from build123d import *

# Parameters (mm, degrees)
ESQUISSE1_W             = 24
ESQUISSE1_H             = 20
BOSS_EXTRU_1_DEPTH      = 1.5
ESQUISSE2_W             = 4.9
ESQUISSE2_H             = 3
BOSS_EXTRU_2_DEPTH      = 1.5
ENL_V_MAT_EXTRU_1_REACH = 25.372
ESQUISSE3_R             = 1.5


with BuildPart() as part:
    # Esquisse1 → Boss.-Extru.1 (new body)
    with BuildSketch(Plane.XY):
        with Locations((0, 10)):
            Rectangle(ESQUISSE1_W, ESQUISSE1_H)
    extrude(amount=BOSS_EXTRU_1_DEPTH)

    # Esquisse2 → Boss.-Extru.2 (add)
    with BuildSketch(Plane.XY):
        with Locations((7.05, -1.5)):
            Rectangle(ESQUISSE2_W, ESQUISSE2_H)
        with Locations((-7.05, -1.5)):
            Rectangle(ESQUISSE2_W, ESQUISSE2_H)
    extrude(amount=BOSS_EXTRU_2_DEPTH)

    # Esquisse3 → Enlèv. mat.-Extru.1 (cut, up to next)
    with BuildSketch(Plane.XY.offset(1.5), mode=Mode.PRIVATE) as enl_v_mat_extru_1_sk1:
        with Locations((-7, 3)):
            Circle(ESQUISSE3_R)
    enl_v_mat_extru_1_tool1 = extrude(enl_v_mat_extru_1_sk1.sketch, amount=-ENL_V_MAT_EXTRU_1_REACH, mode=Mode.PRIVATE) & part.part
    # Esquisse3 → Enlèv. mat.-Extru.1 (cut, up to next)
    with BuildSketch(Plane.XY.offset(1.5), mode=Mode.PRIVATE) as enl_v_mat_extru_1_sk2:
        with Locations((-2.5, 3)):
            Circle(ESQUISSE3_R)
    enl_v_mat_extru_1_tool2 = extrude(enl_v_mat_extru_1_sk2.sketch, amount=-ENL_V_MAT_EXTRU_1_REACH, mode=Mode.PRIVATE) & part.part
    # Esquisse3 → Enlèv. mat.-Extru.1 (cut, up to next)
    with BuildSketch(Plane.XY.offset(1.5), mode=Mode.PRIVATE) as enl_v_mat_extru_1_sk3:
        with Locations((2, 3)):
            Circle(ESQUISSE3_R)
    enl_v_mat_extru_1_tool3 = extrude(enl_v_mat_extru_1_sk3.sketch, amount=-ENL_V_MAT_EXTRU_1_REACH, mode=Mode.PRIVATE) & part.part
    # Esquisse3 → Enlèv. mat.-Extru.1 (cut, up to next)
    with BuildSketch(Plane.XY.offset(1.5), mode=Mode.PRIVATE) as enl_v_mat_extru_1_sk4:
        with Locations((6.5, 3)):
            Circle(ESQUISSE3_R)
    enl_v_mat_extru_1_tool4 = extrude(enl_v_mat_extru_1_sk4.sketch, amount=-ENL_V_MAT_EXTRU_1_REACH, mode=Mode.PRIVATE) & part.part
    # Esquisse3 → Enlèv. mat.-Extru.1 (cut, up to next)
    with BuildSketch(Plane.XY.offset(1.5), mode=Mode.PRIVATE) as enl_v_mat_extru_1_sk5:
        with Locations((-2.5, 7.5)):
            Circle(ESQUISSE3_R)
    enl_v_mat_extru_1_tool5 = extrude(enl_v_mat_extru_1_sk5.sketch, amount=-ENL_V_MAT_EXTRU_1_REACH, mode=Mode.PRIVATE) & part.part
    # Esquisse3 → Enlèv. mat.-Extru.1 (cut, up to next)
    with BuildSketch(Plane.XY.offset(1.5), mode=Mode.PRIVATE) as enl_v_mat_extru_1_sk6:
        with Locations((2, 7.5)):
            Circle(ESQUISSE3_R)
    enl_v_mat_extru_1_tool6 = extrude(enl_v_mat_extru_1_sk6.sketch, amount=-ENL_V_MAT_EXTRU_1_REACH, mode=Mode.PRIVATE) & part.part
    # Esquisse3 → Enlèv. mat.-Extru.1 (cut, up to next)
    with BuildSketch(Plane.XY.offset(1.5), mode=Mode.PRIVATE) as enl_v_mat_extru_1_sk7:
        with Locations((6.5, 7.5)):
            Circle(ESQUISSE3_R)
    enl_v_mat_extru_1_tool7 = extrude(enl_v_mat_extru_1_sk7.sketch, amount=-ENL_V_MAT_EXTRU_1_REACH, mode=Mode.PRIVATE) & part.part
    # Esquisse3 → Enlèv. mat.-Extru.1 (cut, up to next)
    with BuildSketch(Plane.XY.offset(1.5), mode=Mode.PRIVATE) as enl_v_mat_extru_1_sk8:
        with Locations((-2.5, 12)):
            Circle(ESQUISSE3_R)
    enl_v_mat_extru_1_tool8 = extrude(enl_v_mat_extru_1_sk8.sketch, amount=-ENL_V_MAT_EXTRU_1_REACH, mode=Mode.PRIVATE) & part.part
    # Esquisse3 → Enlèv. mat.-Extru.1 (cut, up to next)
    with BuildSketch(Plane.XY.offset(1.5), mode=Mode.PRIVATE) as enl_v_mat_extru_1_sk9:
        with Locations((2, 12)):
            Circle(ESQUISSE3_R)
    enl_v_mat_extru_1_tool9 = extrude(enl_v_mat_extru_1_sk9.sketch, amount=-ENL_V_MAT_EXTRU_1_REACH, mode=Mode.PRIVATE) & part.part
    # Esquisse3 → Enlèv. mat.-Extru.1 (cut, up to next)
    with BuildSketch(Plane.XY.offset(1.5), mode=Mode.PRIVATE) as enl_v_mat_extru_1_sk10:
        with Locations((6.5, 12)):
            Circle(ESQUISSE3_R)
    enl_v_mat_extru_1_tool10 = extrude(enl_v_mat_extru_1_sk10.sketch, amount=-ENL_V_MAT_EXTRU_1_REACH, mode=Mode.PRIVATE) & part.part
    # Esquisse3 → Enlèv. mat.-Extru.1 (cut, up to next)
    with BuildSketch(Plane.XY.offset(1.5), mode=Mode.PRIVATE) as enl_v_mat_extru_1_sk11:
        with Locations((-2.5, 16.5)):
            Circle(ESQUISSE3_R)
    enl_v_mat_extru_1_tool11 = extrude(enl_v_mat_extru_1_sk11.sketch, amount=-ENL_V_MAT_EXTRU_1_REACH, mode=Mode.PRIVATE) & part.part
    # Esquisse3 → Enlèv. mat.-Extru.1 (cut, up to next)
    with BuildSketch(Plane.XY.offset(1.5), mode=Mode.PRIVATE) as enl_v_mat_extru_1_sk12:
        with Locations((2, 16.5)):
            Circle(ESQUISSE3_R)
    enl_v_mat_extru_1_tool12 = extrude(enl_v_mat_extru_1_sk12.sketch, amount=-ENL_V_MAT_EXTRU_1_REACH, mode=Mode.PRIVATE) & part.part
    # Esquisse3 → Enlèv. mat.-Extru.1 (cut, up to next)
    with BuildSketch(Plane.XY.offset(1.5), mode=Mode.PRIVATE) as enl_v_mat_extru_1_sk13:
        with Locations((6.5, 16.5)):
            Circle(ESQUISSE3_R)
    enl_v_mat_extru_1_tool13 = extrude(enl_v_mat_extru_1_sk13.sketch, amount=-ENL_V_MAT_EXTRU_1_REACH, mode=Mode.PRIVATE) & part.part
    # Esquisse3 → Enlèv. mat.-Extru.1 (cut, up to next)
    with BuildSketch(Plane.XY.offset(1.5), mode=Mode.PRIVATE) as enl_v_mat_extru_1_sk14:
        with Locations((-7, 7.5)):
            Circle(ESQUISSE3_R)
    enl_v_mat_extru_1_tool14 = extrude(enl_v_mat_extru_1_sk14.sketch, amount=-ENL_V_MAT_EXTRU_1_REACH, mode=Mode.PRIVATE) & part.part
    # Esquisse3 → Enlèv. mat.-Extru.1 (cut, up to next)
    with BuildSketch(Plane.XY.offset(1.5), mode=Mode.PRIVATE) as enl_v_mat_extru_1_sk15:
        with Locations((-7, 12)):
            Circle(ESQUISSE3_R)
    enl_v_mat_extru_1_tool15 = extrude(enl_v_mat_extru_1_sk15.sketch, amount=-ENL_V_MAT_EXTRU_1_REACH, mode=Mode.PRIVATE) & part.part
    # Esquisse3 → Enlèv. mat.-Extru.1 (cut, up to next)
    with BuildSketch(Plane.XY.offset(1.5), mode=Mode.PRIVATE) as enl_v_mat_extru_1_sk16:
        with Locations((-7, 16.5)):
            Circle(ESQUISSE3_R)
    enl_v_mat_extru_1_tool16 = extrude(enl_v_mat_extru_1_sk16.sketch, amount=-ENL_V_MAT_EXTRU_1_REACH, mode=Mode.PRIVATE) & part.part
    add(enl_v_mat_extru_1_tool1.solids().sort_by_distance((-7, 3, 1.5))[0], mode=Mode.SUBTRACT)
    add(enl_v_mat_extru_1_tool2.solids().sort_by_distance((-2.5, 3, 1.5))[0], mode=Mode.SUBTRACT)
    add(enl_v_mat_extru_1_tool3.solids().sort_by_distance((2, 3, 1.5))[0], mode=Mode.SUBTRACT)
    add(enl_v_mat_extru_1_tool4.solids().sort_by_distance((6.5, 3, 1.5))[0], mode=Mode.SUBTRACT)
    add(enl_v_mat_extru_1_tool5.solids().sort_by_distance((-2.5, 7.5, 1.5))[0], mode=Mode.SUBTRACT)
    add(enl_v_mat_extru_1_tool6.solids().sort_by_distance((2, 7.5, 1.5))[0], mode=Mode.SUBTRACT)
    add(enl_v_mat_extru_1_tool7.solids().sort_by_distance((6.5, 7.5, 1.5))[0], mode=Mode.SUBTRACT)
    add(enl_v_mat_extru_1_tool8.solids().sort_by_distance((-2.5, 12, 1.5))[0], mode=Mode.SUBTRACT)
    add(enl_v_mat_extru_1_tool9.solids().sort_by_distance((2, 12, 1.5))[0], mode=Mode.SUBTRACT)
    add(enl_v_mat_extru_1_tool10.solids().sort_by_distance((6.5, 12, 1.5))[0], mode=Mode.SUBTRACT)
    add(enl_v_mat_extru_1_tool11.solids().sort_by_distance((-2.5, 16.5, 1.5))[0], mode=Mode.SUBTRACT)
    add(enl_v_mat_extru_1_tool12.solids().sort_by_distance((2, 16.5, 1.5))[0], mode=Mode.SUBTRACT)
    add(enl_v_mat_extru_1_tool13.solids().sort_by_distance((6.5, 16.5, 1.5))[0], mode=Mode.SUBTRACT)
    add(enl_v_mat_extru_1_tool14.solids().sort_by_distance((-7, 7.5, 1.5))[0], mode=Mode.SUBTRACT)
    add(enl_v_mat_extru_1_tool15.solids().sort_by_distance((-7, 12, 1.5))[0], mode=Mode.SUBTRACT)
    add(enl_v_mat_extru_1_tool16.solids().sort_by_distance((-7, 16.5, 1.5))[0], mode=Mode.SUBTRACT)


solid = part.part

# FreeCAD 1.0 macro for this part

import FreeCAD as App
import Part
import Sketcher


def add_polygon(sketch, points):
    """Adds a closed chain of lines whose ends are joined by coincident constraints."""
    first, n = sketch.GeometryCount, len(points)
    for a, b in zip(points, points[1:] + points[:1]):
        sketch.addGeometry(Part.LineSegment(App.Vector(*a, 0), App.Vector(*b, 0)), False)
    for i in range(n):
        sketch.addConstraint(Sketcher.Constraint("Coincident", first + i, 2, first + (i + 1) % n, 1))

doc = App.newDocument("Part")
body = doc.addObject("PartDesign::Body", "Body")

# Sketch on XY plane
sketch1 = body.newObject("Sketcher::SketchObject", "Sketch")
sketch1.AttachmentSupport = (doc.getObject("XY_Plane"), [""])
sketch1.MapMode = "FlatFace"
add_polygon(sketch1, [(-12, 20), (-12, 0), (12, 0), (12, 20)])  # lines 0-3
sketch1.addConstraint([
    Sketcher.Constraint("Vertical", 0),
    Sketcher.Constraint("Horizontal", 1),
    Sketcher.Constraint("Vertical", 2),
    Sketcher.Constraint("Horizontal", 3),
    Sketcher.Constraint("Symmetric", 0, 2, 1, 2, -1, 1),
    Sketcher.Constraint("DistanceX", 1, 1, 1, 2, 24.0),
    Sketcher.Constraint("DistanceY", 0, 2, 0, 1, 20.0),
])
pad1 = body.newObject("PartDesign::Pad", "Pad")
pad1.Profile = sketch1
pad1.Length = 1.5

# Sketch on XY plane
sketch2 = body.newObject("Sketcher::SketchObject", "Sketch001")
sketch2.AttachmentSupport = (doc.getObject("XY_Plane"), [""])
sketch2.MapMode = "FlatFace"
add_polygon(sketch2, [(4.6, 0), (4.6, -3), (9.5, -3), (9.5, 0)])  # lines 0-3
add_polygon(sketch2, [(-9.5, 0), (-9.5, -3), (-4.6, -3), (-4.6, 0)])  # lines 4-7
sketch2.addConstraint([
    Sketcher.Constraint("Vertical", 0),
    Sketcher.Constraint("Horizontal", 1),
    Sketcher.Constraint("Vertical", 2),
    Sketcher.Constraint("Horizontal", 3),
    Sketcher.Constraint("Vertical", 4),
    Sketcher.Constraint("Horizontal", 5),
    Sketcher.Constraint("Vertical", 6),
    Sketcher.Constraint("Horizontal", 7),
    Sketcher.Constraint("Symmetric", 3, 2, 6, 2, -1, 1),
    Sketcher.Constraint("Symmetric", 1, 2, 4, 2, -2),
    Sketcher.Constraint("PointOnObject", 2, 2, -1),
    Sketcher.Constraint("DistanceY", 0, 2, 0, 1, 3.0),
    Sketcher.Constraint("DistanceX", 1, 1, 1, 2, 4.9),
    Sketcher.Constraint("DistanceX", 4, 2, 1, 2, 19.0),
])
pad2 = body.newObject("PartDesign::Pad", "Pad001")
pad2.Profile = sketch2
pad2.Length = 1.5

# Sketch on XY plane
sketch3 = body.newObject("Sketcher::SketchObject", "Sketch002")
sketch3.AttachmentSupport = (doc.getObject("XY_Plane"), [""])
sketch3.MapMode = "FlatFace"
sketch3.AttachmentOffset = App.Placement(App.Vector(0, 0, 1.5), App.Rotation())
sketch3.addGeometry(Part.Circle(App.Vector(-7, 3, 0), App.Vector(0, 0, 1), 1.5), False)
sketch3.addConstraint([
    Sketcher.Constraint("Diameter", 0, 3.0),
    Sketcher.Constraint("DistanceX", 0, 3, -1, 1, 7.0),
    Sketcher.Constraint("DistanceY", -1, 1, 0, 3, 3.0),
])
pocket1 = body.newObject("PartDesign::Pocket", "Pocket")
pocket1.Profile = sketch3
pocket1.Type = "UpToFirst"

# Sketch on XY plane
sketch4 = body.newObject("Sketcher::SketchObject", "Sketch003")
sketch4.AttachmentSupport = (doc.getObject("XY_Plane"), [""])
sketch4.MapMode = "FlatFace"
sketch4.AttachmentOffset = App.Placement(App.Vector(0, 0, 1.5), App.Rotation())
sketch4.addGeometry(Part.Circle(App.Vector(-2.5, 3, 0), App.Vector(0, 0, 1), 1.5), False)
sketch4.addConstraint([
    Sketcher.Constraint("Diameter", 0, 3.0),
    Sketcher.Constraint("DistanceY", -1, 1, 0, 3, 3.0),
    Sketcher.Constraint("DistanceX", 0, 3, -1, 1, 2.5),
])
pocket2 = body.newObject("PartDesign::Pocket", "Pocket001")
pocket2.Profile = sketch4
pocket2.Type = "UpToFirst"

# Sketch on XY plane
sketch5 = body.newObject("Sketcher::SketchObject", "Sketch004")
sketch5.AttachmentSupport = (doc.getObject("XY_Plane"), [""])
sketch5.MapMode = "FlatFace"
sketch5.AttachmentOffset = App.Placement(App.Vector(0, 0, 1.5), App.Rotation())
sketch5.addGeometry(Part.Circle(App.Vector(2, 3, 0), App.Vector(0, 0, 1), 1.5), False)
sketch5.addConstraint([
    Sketcher.Constraint("Diameter", 0, 3.0),
    Sketcher.Constraint("DistanceX", -1, 1, 0, 3, 2.0),
    Sketcher.Constraint("DistanceY", -1, 1, 0, 3, 3.0),
])
pocket3 = body.newObject("PartDesign::Pocket", "Pocket002")
pocket3.Profile = sketch5
pocket3.Type = "UpToFirst"

# Sketch on XY plane
sketch6 = body.newObject("Sketcher::SketchObject", "Sketch005")
sketch6.AttachmentSupport = (doc.getObject("XY_Plane"), [""])
sketch6.MapMode = "FlatFace"
sketch6.AttachmentOffset = App.Placement(App.Vector(0, 0, 1.5), App.Rotation())
sketch6.addGeometry(Part.Circle(App.Vector(6.5, 3, 0), App.Vector(0, 0, 1), 1.5), False)
sketch6.addConstraint([
    Sketcher.Constraint("Diameter", 0, 3.0),
    Sketcher.Constraint("DistanceY", -1, 1, 0, 3, 3.0),
    Sketcher.Constraint("DistanceX", -1, 1, 0, 3, 6.5),
])
pocket4 = body.newObject("PartDesign::Pocket", "Pocket003")
pocket4.Profile = sketch6
pocket4.Type = "UpToFirst"

# Sketch on XY plane
sketch7 = body.newObject("Sketcher::SketchObject", "Sketch006")
sketch7.AttachmentSupport = (doc.getObject("XY_Plane"), [""])
sketch7.MapMode = "FlatFace"
sketch7.AttachmentOffset = App.Placement(App.Vector(0, 0, 1.5), App.Rotation())
sketch7.addGeometry(Part.Circle(App.Vector(-2.5, 7.5, 0), App.Vector(0, 0, 1), 1.5), False)
sketch7.addConstraint([
    Sketcher.Constraint("Diameter", 0, 3.0),
    Sketcher.Constraint("DistanceX", 0, 3, -1, 1, 2.5),
    Sketcher.Constraint("DistanceY", -1, 1, 0, 3, 7.5),
])
pocket5 = body.newObject("PartDesign::Pocket", "Pocket004")
pocket5.Profile = sketch7
pocket5.Type = "UpToFirst"

# Sketch on XY plane
sketch8 = body.newObject("Sketcher::SketchObject", "Sketch007")
sketch8.AttachmentSupport = (doc.getObject("XY_Plane"), [""])
sketch8.MapMode = "FlatFace"
sketch8.AttachmentOffset = App.Placement(App.Vector(0, 0, 1.5), App.Rotation())
sketch8.addGeometry(Part.Circle(App.Vector(2, 7.5, 0), App.Vector(0, 0, 1), 1.5), False)
sketch8.addConstraint([
    Sketcher.Constraint("Diameter", 0, 3.0),
    Sketcher.Constraint("DistanceX", -1, 1, 0, 3, 2.0),
    Sketcher.Constraint("DistanceY", -1, 1, 0, 3, 7.5),
])
pocket6 = body.newObject("PartDesign::Pocket", "Pocket005")
pocket6.Profile = sketch8
pocket6.Type = "UpToFirst"

# Sketch on XY plane
sketch9 = body.newObject("Sketcher::SketchObject", "Sketch008")
sketch9.AttachmentSupport = (doc.getObject("XY_Plane"), [""])
sketch9.MapMode = "FlatFace"
sketch9.AttachmentOffset = App.Placement(App.Vector(0, 0, 1.5), App.Rotation())
sketch9.addGeometry(Part.Circle(App.Vector(6.5, 7.5, 0), App.Vector(0, 0, 1), 1.5), False)
sketch9.addConstraint([
    Sketcher.Constraint("Diameter", 0, 3.0),
    Sketcher.Constraint("DistanceX", -1, 1, 0, 3, 6.5),
    Sketcher.Constraint("DistanceY", -1, 1, 0, 3, 7.5),
])
pocket7 = body.newObject("PartDesign::Pocket", "Pocket006")
pocket7.Profile = sketch9
pocket7.Type = "UpToFirst"

# Sketch on XY plane
sketch10 = body.newObject("Sketcher::SketchObject", "Sketch009")
sketch10.AttachmentSupport = (doc.getObject("XY_Plane"), [""])
sketch10.MapMode = "FlatFace"
sketch10.AttachmentOffset = App.Placement(App.Vector(0, 0, 1.5), App.Rotation())
sketch10.addGeometry(Part.Circle(App.Vector(-2.5, 12, 0), App.Vector(0, 0, 1), 1.5), False)
sketch10.addConstraint([
    Sketcher.Constraint("Diameter", 0, 3.0),
    Sketcher.Constraint("DistanceY", -1, 1, 0, 3, 12.0),
    Sketcher.Constraint("DistanceX", 0, 3, -1, 1, 2.5),
])
pocket8 = body.newObject("PartDesign::Pocket", "Pocket007")
pocket8.Profile = sketch10
pocket8.Type = "UpToFirst"

# Sketch on XY plane
sketch11 = body.newObject("Sketcher::SketchObject", "Sketch010")
sketch11.AttachmentSupport = (doc.getObject("XY_Plane"), [""])
sketch11.MapMode = "FlatFace"
sketch11.AttachmentOffset = App.Placement(App.Vector(0, 0, 1.5), App.Rotation())
sketch11.addGeometry(Part.Circle(App.Vector(2, 12, 0), App.Vector(0, 0, 1), 1.5), False)
sketch11.addConstraint([
    Sketcher.Constraint("Diameter", 0, 3.0),
    Sketcher.Constraint("DistanceX", -1, 1, 0, 3, 2.0),
    Sketcher.Constraint("DistanceY", -1, 1, 0, 3, 12.0),
])
pocket9 = body.newObject("PartDesign::Pocket", "Pocket008")
pocket9.Profile = sketch11
pocket9.Type = "UpToFirst"

# Sketch on XY plane
sketch12 = body.newObject("Sketcher::SketchObject", "Sketch011")
sketch12.AttachmentSupport = (doc.getObject("XY_Plane"), [""])
sketch12.MapMode = "FlatFace"
sketch12.AttachmentOffset = App.Placement(App.Vector(0, 0, 1.5), App.Rotation())
sketch12.addGeometry(Part.Circle(App.Vector(6.5, 12, 0), App.Vector(0, 0, 1), 1.5), False)
sketch12.addConstraint([
    Sketcher.Constraint("Diameter", 0, 3.0),
    Sketcher.Constraint("DistanceY", -1, 1, 0, 3, 12.0),
    Sketcher.Constraint("DistanceX", -1, 1, 0, 3, 6.5),
])
pocket10 = body.newObject("PartDesign::Pocket", "Pocket009")
pocket10.Profile = sketch12
pocket10.Type = "UpToFirst"

# Sketch on XY plane
sketch13 = body.newObject("Sketcher::SketchObject", "Sketch012")
sketch13.AttachmentSupport = (doc.getObject("XY_Plane"), [""])
sketch13.MapMode = "FlatFace"
sketch13.AttachmentOffset = App.Placement(App.Vector(0, 0, 1.5), App.Rotation())
sketch13.addGeometry(Part.Circle(App.Vector(-2.5, 16.5, 0), App.Vector(0, 0, 1), 1.5), False)
sketch13.addConstraint([
    Sketcher.Constraint("Diameter", 0, 3.0),
    Sketcher.Constraint("DistanceX", 0, 3, -1, 1, 2.5),
    Sketcher.Constraint("DistanceY", -1, 1, 0, 3, 16.5),
])
pocket11 = body.newObject("PartDesign::Pocket", "Pocket010")
pocket11.Profile = sketch13
pocket11.Type = "UpToFirst"

# Sketch on XY plane
sketch14 = body.newObject("Sketcher::SketchObject", "Sketch013")
sketch14.AttachmentSupport = (doc.getObject("XY_Plane"), [""])
sketch14.MapMode = "FlatFace"
sketch14.AttachmentOffset = App.Placement(App.Vector(0, 0, 1.5), App.Rotation())
sketch14.addGeometry(Part.Circle(App.Vector(2, 16.5, 0), App.Vector(0, 0, 1), 1.5), False)
sketch14.addConstraint([
    Sketcher.Constraint("Diameter", 0, 3.0),
    Sketcher.Constraint("DistanceX", -1, 1, 0, 3, 2.0),
    Sketcher.Constraint("DistanceY", -1, 1, 0, 3, 16.5),
])
pocket12 = body.newObject("PartDesign::Pocket", "Pocket011")
pocket12.Profile = sketch14
pocket12.Type = "UpToFirst"

# Sketch on XY plane
sketch15 = body.newObject("Sketcher::SketchObject", "Sketch014")
sketch15.AttachmentSupport = (doc.getObject("XY_Plane"), [""])
sketch15.MapMode = "FlatFace"
sketch15.AttachmentOffset = App.Placement(App.Vector(0, 0, 1.5), App.Rotation())
sketch15.addGeometry(Part.Circle(App.Vector(6.5, 16.5, 0), App.Vector(0, 0, 1), 1.5), False)
sketch15.addConstraint([
    Sketcher.Constraint("Diameter", 0, 3.0),
    Sketcher.Constraint("DistanceX", -1, 1, 0, 3, 6.5),
    Sketcher.Constraint("DistanceY", -1, 1, 0, 3, 16.5),
])
pocket13 = body.newObject("PartDesign::Pocket", "Pocket012")
pocket13.Profile = sketch15
pocket13.Type = "UpToFirst"

# Sketch on XY plane
sketch16 = body.newObject("Sketcher::SketchObject", "Sketch015")
sketch16.AttachmentSupport = (doc.getObject("XY_Plane"), [""])
sketch16.MapMode = "FlatFace"
sketch16.AttachmentOffset = App.Placement(App.Vector(0, 0, 1.5), App.Rotation())
sketch16.addGeometry(Part.Circle(App.Vector(-7, 7.5, 0), App.Vector(0, 0, 1), 1.5), False)
sketch16.addConstraint([
    Sketcher.Constraint("Diameter", 0, 3.0),
    Sketcher.Constraint("DistanceX", 0, 3, -1, 1, 7.0),
    Sketcher.Constraint("DistanceY", -1, 1, 0, 3, 7.5),
])
pocket14 = body.newObject("PartDesign::Pocket", "Pocket013")
pocket14.Profile = sketch16
pocket14.Type = "UpToFirst"

# Sketch on XY plane
sketch17 = body.newObject("Sketcher::SketchObject", "Sketch016")
sketch17.AttachmentSupport = (doc.getObject("XY_Plane"), [""])
sketch17.MapMode = "FlatFace"
sketch17.AttachmentOffset = App.Placement(App.Vector(0, 0, 1.5), App.Rotation())
sketch17.addGeometry(Part.Circle(App.Vector(-7, 12, 0), App.Vector(0, 0, 1), 1.5), False)
sketch17.addConstraint([
    Sketcher.Constraint("Diameter", 0, 3.0),
    Sketcher.Constraint("DistanceX", 0, 3, -1, 1, 7.0),
    Sketcher.Constraint("DistanceY", -1, 1, 0, 3, 12.0),
])
pocket15 = body.newObject("PartDesign::Pocket", "Pocket014")
pocket15.Profile = sketch17
pocket15.Type = "UpToFirst"

# Sketch on XY plane
sketch18 = body.newObject("Sketcher::SketchObject", "Sketch017")
sketch18.AttachmentSupport = (doc.getObject("XY_Plane"), [""])
sketch18.MapMode = "FlatFace"
sketch18.AttachmentOffset = App.Placement(App.Vector(0, 0, 1.5), App.Rotation())
sketch18.addGeometry(Part.Circle(App.Vector(-7, 16.5, 0), App.Vector(0, 0, 1), 1.5), False)
sketch18.addConstraint([
    Sketcher.Constraint("Diameter", 0, 3.0),
    Sketcher.Constraint("DistanceX", 0, 3, -1, 1, 7.0),
    Sketcher.Constraint("DistanceY", -1, 1, 0, 3, 16.5),
])
pocket16 = body.newObject("PartDesign::Pocket", "Pocket015")
pocket16.Profile = sketch18
pocket16.Type = "UpToFirst"

doc.recompute()
